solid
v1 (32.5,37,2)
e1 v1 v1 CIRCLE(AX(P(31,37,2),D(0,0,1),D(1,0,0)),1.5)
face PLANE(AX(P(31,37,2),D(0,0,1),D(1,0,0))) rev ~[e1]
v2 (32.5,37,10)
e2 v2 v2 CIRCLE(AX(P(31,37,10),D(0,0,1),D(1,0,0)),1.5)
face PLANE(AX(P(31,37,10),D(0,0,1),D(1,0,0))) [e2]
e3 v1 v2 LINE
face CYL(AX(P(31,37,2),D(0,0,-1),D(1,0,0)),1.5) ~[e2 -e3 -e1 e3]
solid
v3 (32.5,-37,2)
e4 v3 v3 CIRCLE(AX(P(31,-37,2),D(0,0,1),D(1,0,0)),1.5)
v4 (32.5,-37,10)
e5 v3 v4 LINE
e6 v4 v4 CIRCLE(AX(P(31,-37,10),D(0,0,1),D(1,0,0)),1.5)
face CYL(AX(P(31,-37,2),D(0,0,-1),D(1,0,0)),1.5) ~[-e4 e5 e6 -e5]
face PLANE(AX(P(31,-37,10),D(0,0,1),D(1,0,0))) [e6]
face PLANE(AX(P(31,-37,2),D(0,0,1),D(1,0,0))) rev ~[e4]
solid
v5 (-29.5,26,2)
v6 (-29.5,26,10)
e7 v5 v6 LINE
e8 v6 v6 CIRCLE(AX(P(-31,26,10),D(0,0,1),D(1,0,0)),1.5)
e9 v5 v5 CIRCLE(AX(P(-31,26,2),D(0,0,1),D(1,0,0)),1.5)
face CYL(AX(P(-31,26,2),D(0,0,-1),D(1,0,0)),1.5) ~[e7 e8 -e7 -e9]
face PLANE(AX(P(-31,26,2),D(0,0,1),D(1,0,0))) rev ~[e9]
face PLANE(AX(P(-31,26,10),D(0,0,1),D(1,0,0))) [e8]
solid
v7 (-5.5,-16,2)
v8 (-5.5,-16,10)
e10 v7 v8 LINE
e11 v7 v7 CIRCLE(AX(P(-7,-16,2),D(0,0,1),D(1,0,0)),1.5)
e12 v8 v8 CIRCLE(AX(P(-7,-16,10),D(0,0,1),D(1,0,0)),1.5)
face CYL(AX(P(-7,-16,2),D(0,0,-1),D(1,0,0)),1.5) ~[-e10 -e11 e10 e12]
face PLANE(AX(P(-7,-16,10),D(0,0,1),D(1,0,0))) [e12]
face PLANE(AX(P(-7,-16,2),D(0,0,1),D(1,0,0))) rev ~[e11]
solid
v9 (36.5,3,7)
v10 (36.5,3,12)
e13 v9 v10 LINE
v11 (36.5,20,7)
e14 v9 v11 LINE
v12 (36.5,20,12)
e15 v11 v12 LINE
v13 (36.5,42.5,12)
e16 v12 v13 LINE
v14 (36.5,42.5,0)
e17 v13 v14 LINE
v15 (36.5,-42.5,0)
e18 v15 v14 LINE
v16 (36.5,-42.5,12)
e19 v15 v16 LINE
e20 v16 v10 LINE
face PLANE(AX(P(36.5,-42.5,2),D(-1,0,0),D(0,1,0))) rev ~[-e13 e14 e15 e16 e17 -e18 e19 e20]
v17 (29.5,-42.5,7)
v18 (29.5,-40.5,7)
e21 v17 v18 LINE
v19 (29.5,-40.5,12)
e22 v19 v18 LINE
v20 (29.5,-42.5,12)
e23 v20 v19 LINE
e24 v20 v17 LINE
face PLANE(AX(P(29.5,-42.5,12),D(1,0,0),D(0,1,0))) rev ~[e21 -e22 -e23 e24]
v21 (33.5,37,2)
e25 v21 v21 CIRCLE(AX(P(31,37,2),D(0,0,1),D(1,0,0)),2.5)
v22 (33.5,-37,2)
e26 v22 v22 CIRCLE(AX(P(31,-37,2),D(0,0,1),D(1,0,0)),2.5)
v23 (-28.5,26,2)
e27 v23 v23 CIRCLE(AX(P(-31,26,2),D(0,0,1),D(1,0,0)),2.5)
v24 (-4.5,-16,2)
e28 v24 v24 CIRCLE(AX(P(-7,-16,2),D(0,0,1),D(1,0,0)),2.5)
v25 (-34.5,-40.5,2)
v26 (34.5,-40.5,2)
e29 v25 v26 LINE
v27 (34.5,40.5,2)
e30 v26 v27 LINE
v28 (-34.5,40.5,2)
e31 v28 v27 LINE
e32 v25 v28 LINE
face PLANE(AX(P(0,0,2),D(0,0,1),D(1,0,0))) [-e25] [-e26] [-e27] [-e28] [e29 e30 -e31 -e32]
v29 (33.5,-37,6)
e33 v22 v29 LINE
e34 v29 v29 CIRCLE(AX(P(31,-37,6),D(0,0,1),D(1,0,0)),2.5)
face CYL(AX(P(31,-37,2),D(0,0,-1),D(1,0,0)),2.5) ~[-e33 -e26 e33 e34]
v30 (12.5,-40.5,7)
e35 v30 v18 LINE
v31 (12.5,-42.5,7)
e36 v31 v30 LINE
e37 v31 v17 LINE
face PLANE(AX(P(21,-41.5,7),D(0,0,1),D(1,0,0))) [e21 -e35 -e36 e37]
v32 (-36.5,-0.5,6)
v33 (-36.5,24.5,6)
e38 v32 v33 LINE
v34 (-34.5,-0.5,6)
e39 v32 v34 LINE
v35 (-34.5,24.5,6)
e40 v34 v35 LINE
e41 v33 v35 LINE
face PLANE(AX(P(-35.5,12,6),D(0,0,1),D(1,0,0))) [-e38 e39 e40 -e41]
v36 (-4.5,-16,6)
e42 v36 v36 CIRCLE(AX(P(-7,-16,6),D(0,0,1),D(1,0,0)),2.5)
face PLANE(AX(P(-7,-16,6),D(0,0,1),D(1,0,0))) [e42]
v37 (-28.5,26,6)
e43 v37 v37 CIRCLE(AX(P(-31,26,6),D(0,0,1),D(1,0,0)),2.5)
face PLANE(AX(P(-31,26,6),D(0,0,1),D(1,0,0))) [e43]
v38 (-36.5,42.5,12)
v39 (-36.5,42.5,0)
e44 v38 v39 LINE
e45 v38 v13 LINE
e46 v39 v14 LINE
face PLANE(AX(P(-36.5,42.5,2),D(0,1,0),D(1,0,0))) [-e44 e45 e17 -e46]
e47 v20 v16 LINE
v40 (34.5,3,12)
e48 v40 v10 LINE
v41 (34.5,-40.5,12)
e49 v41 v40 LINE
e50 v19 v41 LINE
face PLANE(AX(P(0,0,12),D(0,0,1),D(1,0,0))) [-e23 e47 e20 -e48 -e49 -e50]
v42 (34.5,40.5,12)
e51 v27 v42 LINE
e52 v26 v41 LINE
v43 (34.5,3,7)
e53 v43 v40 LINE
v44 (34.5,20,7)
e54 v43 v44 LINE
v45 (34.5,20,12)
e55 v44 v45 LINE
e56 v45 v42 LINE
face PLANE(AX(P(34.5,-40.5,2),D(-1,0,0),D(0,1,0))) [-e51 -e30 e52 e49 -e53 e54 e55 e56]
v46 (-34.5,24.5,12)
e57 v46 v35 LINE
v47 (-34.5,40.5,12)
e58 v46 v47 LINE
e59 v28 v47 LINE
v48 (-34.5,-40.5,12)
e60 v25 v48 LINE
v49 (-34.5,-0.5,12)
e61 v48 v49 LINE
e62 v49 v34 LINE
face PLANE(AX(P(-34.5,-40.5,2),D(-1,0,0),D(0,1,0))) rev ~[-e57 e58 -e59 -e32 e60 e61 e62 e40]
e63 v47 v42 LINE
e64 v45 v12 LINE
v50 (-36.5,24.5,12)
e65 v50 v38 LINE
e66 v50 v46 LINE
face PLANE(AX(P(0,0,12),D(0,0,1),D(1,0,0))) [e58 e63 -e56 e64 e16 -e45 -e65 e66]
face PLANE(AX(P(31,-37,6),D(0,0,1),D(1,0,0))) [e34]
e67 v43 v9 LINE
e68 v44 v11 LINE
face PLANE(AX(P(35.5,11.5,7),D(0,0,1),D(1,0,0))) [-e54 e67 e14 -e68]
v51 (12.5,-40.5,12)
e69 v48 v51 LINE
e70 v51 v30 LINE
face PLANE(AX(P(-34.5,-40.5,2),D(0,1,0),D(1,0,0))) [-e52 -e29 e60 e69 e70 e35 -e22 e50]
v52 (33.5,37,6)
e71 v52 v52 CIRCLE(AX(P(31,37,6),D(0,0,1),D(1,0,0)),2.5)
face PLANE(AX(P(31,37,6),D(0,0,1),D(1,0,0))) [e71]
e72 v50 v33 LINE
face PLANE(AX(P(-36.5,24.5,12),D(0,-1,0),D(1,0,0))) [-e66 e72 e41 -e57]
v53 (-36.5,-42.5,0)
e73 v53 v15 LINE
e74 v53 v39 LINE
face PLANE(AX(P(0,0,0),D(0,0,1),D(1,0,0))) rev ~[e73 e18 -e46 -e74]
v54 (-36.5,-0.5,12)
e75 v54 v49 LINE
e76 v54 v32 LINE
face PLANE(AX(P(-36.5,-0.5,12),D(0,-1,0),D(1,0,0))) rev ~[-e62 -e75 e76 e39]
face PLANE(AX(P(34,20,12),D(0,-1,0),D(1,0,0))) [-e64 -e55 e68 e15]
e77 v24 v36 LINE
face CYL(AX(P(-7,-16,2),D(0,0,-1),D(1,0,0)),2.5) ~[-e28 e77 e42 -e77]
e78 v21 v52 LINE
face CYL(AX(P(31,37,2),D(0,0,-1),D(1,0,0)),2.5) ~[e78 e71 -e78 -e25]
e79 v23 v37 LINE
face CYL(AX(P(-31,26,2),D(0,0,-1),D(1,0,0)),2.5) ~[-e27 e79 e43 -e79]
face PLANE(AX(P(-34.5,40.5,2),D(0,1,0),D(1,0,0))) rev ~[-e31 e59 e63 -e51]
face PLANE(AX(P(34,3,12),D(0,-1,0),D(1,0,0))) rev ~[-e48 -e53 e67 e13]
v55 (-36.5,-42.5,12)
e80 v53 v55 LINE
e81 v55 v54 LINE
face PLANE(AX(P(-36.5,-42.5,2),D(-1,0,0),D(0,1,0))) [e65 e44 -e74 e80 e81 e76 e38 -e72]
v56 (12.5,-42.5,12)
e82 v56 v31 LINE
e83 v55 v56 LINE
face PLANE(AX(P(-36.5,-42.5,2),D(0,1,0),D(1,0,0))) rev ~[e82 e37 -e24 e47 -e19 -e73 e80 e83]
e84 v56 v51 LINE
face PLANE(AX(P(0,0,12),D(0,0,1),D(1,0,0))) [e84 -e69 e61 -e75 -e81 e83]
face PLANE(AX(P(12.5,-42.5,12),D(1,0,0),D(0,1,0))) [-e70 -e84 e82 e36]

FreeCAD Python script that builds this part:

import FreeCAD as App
import Part
import Sketcher
from FreeCAD import Vector
Q = App.Units.Quantity


def add_polygon(sketch, points):
    """Adds a closed chain of lines whose ends are joined by coincident constraints."""
    first, n = sketch.GeometryCount, len(points)
    for a, b in zip(points, points[1:] + points[:1]):
        sketch.addGeometry(Part.LineSegment(App.Vector(*a, 0), App.Vector(*b, 0)), False)
    for i in range(n):
        sketch.addConstraint(Sketcher.Constraint("Coincident", first + i, 2, first + (i + 1) % n, 1))

doc = App.newDocument("Part")
params = doc.addObject("Spreadsheet::Sheet", "Params")
for row, (alias, value) in enumerate([
    ("sketch1_diameter", "3 mm"),
    ("pad1_length", "8 mm"),
    ("sketch2_width", "73 mm"),
    ("sketch2_height", "85 mm"),
    ("pad2_length", "2 mm"),
    ("sketch3_width", "73 mm"),
    ("sketch3_width2", "69 mm"),
    ("sketch3_height", "85 mm"),
    ("sketch3_height2", "81 mm"),
    ("pad3_length", "10 mm"),
    ("sketch4_width", "2 mm"),
    ("sketch4_height", "25 mm"),
    ("pocket1_length", "6 mm"),
    ("sketch5_diameter", "5 mm"),
    ("pad4_length", "4 mm"),
    ("sketch6_width", "3 mm"),
    ("sketch6_height", "17 mm"),
    ("pocket2_length", "5 mm"),
    ("sketch7_width", "17 mm"),
    ("sketch7_height", "2 mm"),
    ("pocket3_length", "5 mm"),
], start=1):
    params.set(f"A{row}", alias)
    params.set(f"B{row}", "=" + value)
    params.setAlias(f"B{row}", alias)

body = doc.addObject("PartDesign::Body", "Body")
body.AllowCompound = True

sketch1 = doc.addObject("Sketcher::SketchObject", "Sketch")
body.addObject(sketch1)
sketch1.AttachmentSupport = (doc.XY_Plane, [""])
sketch1.MapMode = "FlatFace"
sketch1.AttachmentOffset = App.Placement(Vector(0, 0, 2), App.Rotation())
sketch1.addGeometry(Part.Circle(Vector(-31, 26, 0), Vector(0, 0, 1), 1.5), False)
sketch1.addGeometry(Part.Circle(Vector(31, 37, 0), Vector(0, 0, 1), 1.5), False)
sketch1.addGeometry(Part.Circle(Vector(31, -37, 0), Vector(0, 0, 1), 1.5), False)
sketch1.addGeometry(Part.Circle(Vector(-7, -16, 0), Vector(0, 0, 1), 1.5), False)
sketch1.addConstraint(Sketcher.Constraint("Equal", 0, 1))
sketch1.addConstraint(Sketcher.Constraint("Equal", 1, 2))
sketch1.addConstraint(Sketcher.Constraint("Equal", 2, 3))
sketch1.addConstraint(Sketcher.Constraint("Symmetric", 1, 3, 2, 3, -1))
sketch1.addConstraint(Sketcher.Constraint("Diameter", 0, Q("3 mm")))
sketch1.addConstraint(Sketcher.Constraint("DistanceX", 0, 3, -1, 1, Q("31 mm")))
sketch1.addConstraint(Sketcher.Constraint("DistanceY", -1, 1, 0, 3, Q("26 mm")))
sketch1.addConstraint(Sketcher.Constraint("DistanceX", -1, 1, 1, 3, Q("31 mm")))
sketch1.addConstraint(Sketcher.Constraint("DistanceY", -1, 1, 1, 3, Q("37 mm")))
sketch1.addConstraint(Sketcher.Constraint("DistanceX", 3, 3, -1, 1, Q("7 mm")))
sketch1.addConstraint(Sketcher.Constraint("DistanceY", 3, 3, -1, 1, Q("16 mm")))
sketch1.setExpression("Constraints[4]", "Params.sketch1_diameter")
pad1 = doc.addObject("PartDesign::Pad", "Pad")
body.addObject(pad1)
pad1.Profile = sketch1
pad1.setExpression("Length", "Params.pad1_length")
body2 = doc.addObject("PartDesign::Body", "Body001")

sketch2 = doc.addObject("Sketcher::SketchObject", "Sketch001")
body2.addObject(sketch2)
sketch2.AttachmentSupport = (doc.getObject("XY_Plane001"), [""])
sketch2.MapMode = "FlatFace"
add_polygon(sketch2, [(-36, 42), (-36, -42), (36, -42), (36, 42)])
sketch2.addConstraint(Sketcher.Constraint("Vertical", 0))
sketch2.addConstraint(Sketcher.Constraint("Horizontal", 1))
sketch2.addConstraint(Sketcher.Constraint("Vertical", 2))
sketch2.addConstraint(Sketcher.Constraint("Horizontal", 3))
sketch2.addConstraint(Sketcher.Constraint("Symmetric", 0, 2, 2, 2, -1, 1))
sketch2.addConstraint(Sketcher.Constraint("DistanceX", 1, 1, 1, 2, Q("73 mm")))
sketch2.addConstraint(Sketcher.Constraint("DistanceY", 0, 2, 0, 1, Q("85 mm")))
sketch2.setExpression("Constraints[9]", "Params.sketch2_width")
sketch2.setExpression("Constraints[10]", "Params.sketch2_height")
pad2 = doc.addObject("PartDesign::Pad", "Pad001")
body2.addObject(pad2)
pad2.Profile = sketch2
pad2.setExpression("Length", "Params.pad2_length")

sketch3 = doc.addObject("Sketcher::SketchObject", "Sketch002")
body2.addObject(sketch3)
sketch3.AttachmentSupport = (doc.getObject("XY_Plane001"), [""])
sketch3.MapMode = "FlatFace"
sketch3.AttachmentOffset = App.Placement(Vector(0, 0, 2), App.Rotation())
add_polygon(sketch3, [(-36, 42), (-36, -42), (36, -42), (36, 42)])
add_polygon(sketch3, [(34, -40), (-34, -40), (-34, 40), (34, 40)])
sketch3.addConstraint(Sketcher.Constraint("Vertical", 0))
sketch3.addConstraint(Sketcher.Constraint("Horizontal", 1))
sketch3.addConstraint(Sketcher.Constraint("Vertical", 2))
sketch3.addConstraint(Sketcher.Constraint("Horizontal", 3))
sketch3.addConstraint(Sketcher.Constraint("Horizontal", 4))
sketch3.addConstraint(Sketcher.Constraint("Vertical", 5))
sketch3.addConstraint(Sketcher.Constraint("Horizontal", 6))
sketch3.addConstraint(Sketcher.Constraint("Vertical", 7))
sketch3.addConstraint(Sketcher.Constraint("Symmetric", 0, 2, 2, 2, -1, 1))
sketch3.addConstraint(Sketcher.Constraint("Symmetric", 4, 2, 6, 2, -1, 1))
sketch3.addConstraint(Sketcher.Constraint("DistanceX", 1, 1, 1, 2, Q("73 mm")))
sketch3.addConstraint(Sketcher.Constraint("DistanceX", 4, 2, 4, 1, Q("69 mm")))
sketch3.addConstraint(Sketcher.Constraint("DistanceY", 0, 2, 0, 1, Q("85 mm")))
sketch3.addConstraint(Sketcher.Constraint("DistanceY", 5, 1, 5, 2, Q("81 mm")))
sketch3.setExpression("Constraints[18]", "Params.sketch3_width")
sketch3.setExpression("Constraints[19]", "Params.sketch3_width2")
sketch3.setExpression("Constraints[20]", "Params.sketch3_height")
sketch3.setExpression("Constraints[21]", "Params.sketch3_height2")
pad3 = doc.addObject("PartDesign::Pad", "Pad002")
body2.addObject(pad3)
pad3.Profile = sketch3
pad3.setExpression("Length", "Params.pad3_length")

sketch4 = doc.addObject("Sketcher::SketchObject", "Sketch003")
body2.addObject(sketch4)
sketch4.AttachmentSupport = (doc.getObject("XY_Plane001"), [""])
sketch4.MapMode = "FlatFace"
sketch4.AttachmentOffset = App.Placement(Vector(0, 0, 12), App.Rotation())
add_polygon(sketch4, [(-36.5, 24.5), (-36.5, -0.5), (-34.5, -0.5), (-34.5, 24.5)])
sketch4.addConstraint(Sketcher.Constraint("Vertical", 0))
sketch4.addConstraint(Sketcher.Constraint("Horizontal", 1))
sketch4.addConstraint(Sketcher.Constraint("Vertical", 2))
sketch4.addConstraint(Sketcher.Constraint("Horizontal", 3))
sketch4.addConstraint(Sketcher.Constraint("DistanceX", 1, 1, 1, 2, Q("2 mm")))
sketch4.addConstraint(Sketcher.Constraint("DistanceY", 0, 2, 0, 1, Q("25 mm")))
sketch4.addConstraint(Sketcher.Constraint("DistanceX", 0, 2, -1, 1, Q("36.5 mm")))
sketch4.addConstraint(Sketcher.Constraint("DistanceY", 0, 2, -1, 1, Q("0.5 mm")))
sketch4.setExpression("Constraints[8]", "Params.sketch4_width")
sketch4.setExpression("Constraints[9]", "Params.sketch4_height")
pocket1 = doc.addObject("PartDesign::Pocket", "Pocket")
body2.addObject(pocket1)
pocket1.Profile = sketch4
pocket1.setExpression("Length", "Params.pocket1_length")

sketch5 = doc.addObject("Sketcher::SketchObject", "Sketch004")
body2.addObject(sketch5)
sketch5.AttachmentSupport = (doc.getObject("XY_Plane001"), [""])
sketch5.MapMode = "FlatFace"
sketch5.AttachmentOffset = App.Placement(Vector(0, 0, 2), App.Rotation())
sketch5.addGeometry(Part.Circle(Vector(-31, 26, 0), Vector(0, 0, 1), 2.5), False)
sketch5.addGeometry(Part.Circle(Vector(31, 37, 0), Vector(0, 0, 1), 2.5), False)
sketch5.addGeometry(Part.Circle(Vector(31, -37, 0), Vector(0, 0, 1), 2.5), False)
sketch5.addGeometry(Part.Circle(Vector(-7, -16, 0), Vector(0, 0, 1), 2.5), False)
sketch5.addConstraint(Sketcher.Constraint("Equal", 0, 1))
sketch5.addConstraint(Sketcher.Constraint("Equal", 1, 2))
sketch5.addConstraint(Sketcher.Constraint("Equal", 2, 3))
sketch5.addConstraint(Sketcher.Constraint("Symmetric", 1, 3, 2, 3, -1))
sketch5.addConstraint(Sketcher.Constraint("Diameter", 0, Q("5 mm")))
sketch5.addConstraint(Sketcher.Constraint("DistanceX", 0, 3, -1, 1, Q("31 mm")))
sketch5.addConstraint(Sketcher.Constraint("DistanceY", -1, 1, 0, 3, Q("26 mm")))
sketch5.addConstraint(Sketcher.Constraint("DistanceX", -1, 1, 1, 3, Q("31 mm")))
sketch5.addConstraint(Sketcher.Constraint("DistanceY", -1, 1, 1, 3, Q("37 mm")))
sketch5.addConstraint(Sketcher.Constraint("DistanceX", 3, 3, -1, 1, Q("7 mm")))
sketch5.addConstraint(Sketcher.Constraint("DistanceY", 3, 3, -1, 1, Q("16 mm")))
sketch5.setExpression("Constraints[4]", "Params.sketch5_diameter")
pad4 = doc.addObject("PartDesign::Pad", "Pad003")
body2.addObject(pad4)
pad4.Profile = sketch5
pad4.setExpression("Length", "Params.pad4_length")

sketch6 = doc.addObject("Sketcher::SketchObject", "Sketch005")
body2.addObject(sketch6)
sketch6.AttachmentSupport = (doc.getObject("XY_Plane001"), [""])
sketch6.MapMode = "FlatFace"
sketch6.AttachmentOffset = App.Placement(Vector(0, 0, 12), App.Rotation())
add_polygon(sketch6, [(34, 20), (34, 3), (37, 3), (37, 20)])
sketch6.addConstraint(Sketcher.Constraint("Vertical", 0))
sketch6.addConstraint(Sketcher.Constraint("Horizontal", 1))
sketch6.addConstraint(Sketcher.Constraint("Vertical", 2))
sketch6.addConstraint(Sketcher.Constraint("Horizontal", 3))
sketch6.addConstraint(Sketcher.Constraint("DistanceX", 1, 1, 1, 2, Q("3 mm")))
sketch6.addConstraint(Sketcher.Constraint("DistanceY", 0, 2, 0, 1, Q("17 mm")))
sketch6.addConstraint(Sketcher.Constraint("DistanceX", -1, 1, 0, 2, Q("34 mm")))
sketch6.addConstraint(Sketcher.Constraint("DistanceY", -1, 1, 0, 2, Q("3 mm")))
sketch6.setExpression("Constraints[8]", "Params.sketch6_width")
sketch6.setExpression("Constraints[9]", "Params.sketch6_height")
pocket2 = doc.addObject("PartDesign::Pocket", "Pocket001")
body2.addObject(pocket2)
pocket2.Profile = sketch6
pocket2.setExpression("Length", "Params.pocket2_length")

sketch7 = doc.addObject("Sketcher::SketchObject", "Sketch006")
body2.addObject(sketch7)
sketch7.AttachmentSupport = (doc.getObject("XY_Plane001"), [""])
sketch7.MapMode = "FlatFace"
sketch7.AttachmentOffset = App.Placement(Vector(0, 0, 12), App.Rotation())
add_polygon(sketch7, [(12.5, -40.5), (12.5, -42.5), (29.5, -42.5), (29.5, -40.5)])
sketch7.addConstraint(Sketcher.Constraint("Vertical", 0))
sketch7.addConstraint(Sketcher.Constraint("Horizontal", 1))
sketch7.addConstraint(Sketcher.Constraint("Vertical", 2))
sketch7.addConstraint(Sketcher.Constraint("Horizontal", 3))
sketch7.addConstraint(Sketcher.Constraint("DistanceX", 1, 1, 1, 2, Q("17 mm")))
sketch7.addConstraint(Sketcher.Constraint("DistanceY", 0, 2, 0, 1, Q("2 mm")))
sketch7.addConstraint(Sketcher.Constraint("DistanceX", -1, 1, 0, 2, Q("12.5 mm")))
sketch7.addConstraint(Sketcher.Constraint("DistanceY", 0, 2, -1, 1, Q("42.5 mm")))
sketch7.setExpression("Constraints[8]", "Params.sketch7_width")
sketch7.setExpression("Constraints[9]", "Params.sketch7_height")
pocket3 = doc.addObject("PartDesign::Pocket", "Pocket002")
body2.addObject(pocket3)
pocket3.Profile = sketch7
pocket3.setExpression("Length", "Params.pocket3_length")

doc.recompute()
